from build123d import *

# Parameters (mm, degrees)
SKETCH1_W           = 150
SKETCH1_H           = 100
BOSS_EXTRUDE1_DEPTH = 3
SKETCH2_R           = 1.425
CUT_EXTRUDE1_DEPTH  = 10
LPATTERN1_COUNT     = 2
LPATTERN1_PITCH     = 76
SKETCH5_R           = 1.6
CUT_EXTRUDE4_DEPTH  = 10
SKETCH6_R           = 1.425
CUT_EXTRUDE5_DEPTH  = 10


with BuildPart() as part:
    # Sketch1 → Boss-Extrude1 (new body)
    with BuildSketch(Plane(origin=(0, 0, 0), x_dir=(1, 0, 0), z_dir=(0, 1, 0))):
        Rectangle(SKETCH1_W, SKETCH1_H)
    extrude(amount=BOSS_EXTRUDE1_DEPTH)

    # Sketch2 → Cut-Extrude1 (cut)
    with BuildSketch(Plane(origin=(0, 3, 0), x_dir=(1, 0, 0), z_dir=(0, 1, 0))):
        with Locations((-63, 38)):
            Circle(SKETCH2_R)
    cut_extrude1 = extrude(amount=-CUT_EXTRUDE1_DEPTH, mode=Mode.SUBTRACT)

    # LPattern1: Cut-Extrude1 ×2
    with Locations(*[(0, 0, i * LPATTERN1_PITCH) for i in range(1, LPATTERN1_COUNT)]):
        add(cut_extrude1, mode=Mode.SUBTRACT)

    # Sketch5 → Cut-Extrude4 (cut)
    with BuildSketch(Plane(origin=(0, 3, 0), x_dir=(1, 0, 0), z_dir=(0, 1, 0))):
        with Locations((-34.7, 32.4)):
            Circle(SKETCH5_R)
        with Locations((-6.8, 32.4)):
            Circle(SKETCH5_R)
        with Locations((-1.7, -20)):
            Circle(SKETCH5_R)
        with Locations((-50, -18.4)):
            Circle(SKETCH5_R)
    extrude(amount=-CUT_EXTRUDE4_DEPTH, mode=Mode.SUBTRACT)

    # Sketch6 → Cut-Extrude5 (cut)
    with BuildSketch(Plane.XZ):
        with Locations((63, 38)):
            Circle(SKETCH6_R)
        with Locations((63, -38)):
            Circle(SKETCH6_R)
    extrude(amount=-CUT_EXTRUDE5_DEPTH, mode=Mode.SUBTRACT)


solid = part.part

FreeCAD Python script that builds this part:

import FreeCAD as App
import Part
import Sketcher
Q = App.Units.Quantity


def add_polygon(sketch, points):
    """Adds a closed chain of lines whose ends are joined by coincident constraints."""
    first, n = sketch.GeometryCount, len(points)
    for a, b in zip(points, points[1:] + points[:1]):
        sketch.addGeometry(Part.LineSegment(App.Vector(*a, 0), App.Vector(*b, 0)), False)
    for i in range(n):
        sketch.addConstraint(Sketcher.Constraint("Coincident", first + i, 2, first + (i + 1) % n, 1))

doc = App.newDocument("Part")
body = doc.addObject("PartDesign::Body", "Body")

sketch1 = body.newObject("Sketcher::SketchObject", "Sketch")
sketch1.AttachmentSupport = (doc.getObject("XZ_Plane"), [""])
sketch1.MapMode = "FlatFace"
add_polygon(sketch1, [(-75, -50), (-75, 50), (75, 50), (75, -50)])
sketch1.addConstraint([
    Sketcher.Constraint("Vertical", 0),
    Sketcher.Constraint("Horizontal", 1),
    Sketcher.Constraint("Vertical", 2),
    Sketcher.Constraint("Horizontal", 3),
    Sketcher.Constraint("Symmetric", 0, 2, 2, 2, -1, 1),
    Sketcher.Constraint("DistanceX", 1, 1, 1, 2, Q("150 mm")),
    Sketcher.Constraint("DistanceY", 0, 1, 0, 2, Q("100 mm")),
])
pad1 = body.newObject("PartDesign::Pad", "Pad")
pad1.Profile = sketch1
pad1.Length = 3
pad1.Reversed = True

sketch2 = body.newObject("Sketcher::SketchObject", "Sketch001")
sketch2.AttachmentSupport = (doc.getObject("XZ_Plane"), [""])
sketch2.MapMode = "FlatFace"
sketch2.AttachmentOffset = App.Placement(App.Vector(0, 0, -3), App.Rotation())
sketch2.addGeometry(Part.Circle(App.Vector(-63, -38, 0), App.Vector(0, 0, 1), 1.425), False)
sketch2.addConstraint([
    Sketcher.Constraint("Diameter", 0, Q("2.85 mm")),
    Sketcher.Constraint("DistanceX", 0, 3, -1, 1, Q("63 mm")),
    Sketcher.Constraint("DistanceY", 0, 3, -1, 1, Q("38 mm")),
])
pocket1 = body.newObject("PartDesign::Pocket", "Pocket")
pocket1.Profile = sketch2
pocket1.Length = 10
pocket1.Reversed = True
doc.recompute()

linearpattern = body.newObject("PartDesign::LinearPattern", "LinearPattern")
linearpattern.Originals = [pocket1]
linearpattern.Direction = (doc.getObject("Z_Axis"), [""])
linearpattern.Mode = "offset"
linearpattern.Offset = 76
linearpattern.Occurrences = 2
body.Tip = linearpattern

sketch3 = body.newObject("Sketcher::SketchObject", "Sketch002")
sketch3.AttachmentSupport = (doc.getObject("XZ_Plane"), [""])
sketch3.MapMode = "FlatFace"
sketch3.AttachmentOffset = App.Placement(App.Vector(0, 0, -3), App.Rotation())
sketch3.addGeometry([
    Part.Circle(App.Vector(-34.7, -32.4, 0), App.Vector(0, 0, 1), 1.6),
    Part.Circle(App.Vector(-6.8, -32.4, 0), App.Vector(0, 0, 1), 1.6),
    Part.Circle(App.Vector(-1.7, 20, 0), App.Vector(0, 0, 1), 1.6),
    Part.Circle(App.Vector(-50, 18.4, 0), App.Vector(0, 0, 1), 1.6),
], False)
sketch3.addConstraint([
    Sketcher.Constraint("Equal", 0, 1),
    Sketcher.Constraint("Equal", 1, 2),
    Sketcher.Constraint("Equal", 2, 3),
    Sketcher.Constraint("Horizontal", 0, 3, 1, 3),
    Sketcher.Constraint("Diameter", 0, Q("3.2 mm")),
    Sketcher.Constraint("DistanceY", -1, 1, 2, 3, Q("20 mm")),
    Sketcher.Constraint("DistanceX", 3, 3, -1, 1, Q("50 mm")),
    Sketcher.Constraint("DistanceX", 0, 3, 2, 3, Q("33 mm")),
    Sketcher.Constraint("DistanceX", 0, 3, -1, 1, Q("34.7 mm")),
    Sketcher.Constraint("DistanceY", 0, 3, -1, 1, Q("32.4 mm")),
    Sketcher.Constraint("DistanceX", 1, 3, -1, 1, Q("6.8 mm")),
    Sketcher.Constraint("DistanceY", -1, 1, 3, 3, Q("18.4 mm")),
])
pocket2 = body.newObject("PartDesign::Pocket", "Pocket001")
pocket2.Profile = sketch3
pocket2.Length = 10
pocket2.Reversed = True

sketch4 = body.newObject("Sketcher::SketchObject", "Sketch003")
sketch4.AttachmentSupport = (doc.getObject("XZ_Plane"), [""])
sketch4.MapMode = "FlatFace"
sketch4.addGeometry([
    Part.Circle(App.Vector(63, 38, 0), App.Vector(0, 0, 1), 1.425),
    Part.Circle(App.Vector(63, -38, 0), App.Vector(0, 0, 1), 1.425),
], False)
sketch4.addConstraint([
    Sketcher.Constraint("Equal", 0, 1),
    Sketcher.Constraint("Symmetric", 0, 3, 1, 3, -1),
    Sketcher.Constraint("Diameter", 0, Q("2.85 mm")),
    Sketcher.Constraint("DistanceX", -1, 1, 0, 3, Q("63 mm")),
    Sketcher.Constraint("DistanceY", -1, 1, 0, 3, Q("38 mm")),
])
pocket3 = body.newObject("PartDesign::Pocket", "Pocket002")
pocket3.Profile = sketch4
pocket3.Length = 10

doc.recompute()
